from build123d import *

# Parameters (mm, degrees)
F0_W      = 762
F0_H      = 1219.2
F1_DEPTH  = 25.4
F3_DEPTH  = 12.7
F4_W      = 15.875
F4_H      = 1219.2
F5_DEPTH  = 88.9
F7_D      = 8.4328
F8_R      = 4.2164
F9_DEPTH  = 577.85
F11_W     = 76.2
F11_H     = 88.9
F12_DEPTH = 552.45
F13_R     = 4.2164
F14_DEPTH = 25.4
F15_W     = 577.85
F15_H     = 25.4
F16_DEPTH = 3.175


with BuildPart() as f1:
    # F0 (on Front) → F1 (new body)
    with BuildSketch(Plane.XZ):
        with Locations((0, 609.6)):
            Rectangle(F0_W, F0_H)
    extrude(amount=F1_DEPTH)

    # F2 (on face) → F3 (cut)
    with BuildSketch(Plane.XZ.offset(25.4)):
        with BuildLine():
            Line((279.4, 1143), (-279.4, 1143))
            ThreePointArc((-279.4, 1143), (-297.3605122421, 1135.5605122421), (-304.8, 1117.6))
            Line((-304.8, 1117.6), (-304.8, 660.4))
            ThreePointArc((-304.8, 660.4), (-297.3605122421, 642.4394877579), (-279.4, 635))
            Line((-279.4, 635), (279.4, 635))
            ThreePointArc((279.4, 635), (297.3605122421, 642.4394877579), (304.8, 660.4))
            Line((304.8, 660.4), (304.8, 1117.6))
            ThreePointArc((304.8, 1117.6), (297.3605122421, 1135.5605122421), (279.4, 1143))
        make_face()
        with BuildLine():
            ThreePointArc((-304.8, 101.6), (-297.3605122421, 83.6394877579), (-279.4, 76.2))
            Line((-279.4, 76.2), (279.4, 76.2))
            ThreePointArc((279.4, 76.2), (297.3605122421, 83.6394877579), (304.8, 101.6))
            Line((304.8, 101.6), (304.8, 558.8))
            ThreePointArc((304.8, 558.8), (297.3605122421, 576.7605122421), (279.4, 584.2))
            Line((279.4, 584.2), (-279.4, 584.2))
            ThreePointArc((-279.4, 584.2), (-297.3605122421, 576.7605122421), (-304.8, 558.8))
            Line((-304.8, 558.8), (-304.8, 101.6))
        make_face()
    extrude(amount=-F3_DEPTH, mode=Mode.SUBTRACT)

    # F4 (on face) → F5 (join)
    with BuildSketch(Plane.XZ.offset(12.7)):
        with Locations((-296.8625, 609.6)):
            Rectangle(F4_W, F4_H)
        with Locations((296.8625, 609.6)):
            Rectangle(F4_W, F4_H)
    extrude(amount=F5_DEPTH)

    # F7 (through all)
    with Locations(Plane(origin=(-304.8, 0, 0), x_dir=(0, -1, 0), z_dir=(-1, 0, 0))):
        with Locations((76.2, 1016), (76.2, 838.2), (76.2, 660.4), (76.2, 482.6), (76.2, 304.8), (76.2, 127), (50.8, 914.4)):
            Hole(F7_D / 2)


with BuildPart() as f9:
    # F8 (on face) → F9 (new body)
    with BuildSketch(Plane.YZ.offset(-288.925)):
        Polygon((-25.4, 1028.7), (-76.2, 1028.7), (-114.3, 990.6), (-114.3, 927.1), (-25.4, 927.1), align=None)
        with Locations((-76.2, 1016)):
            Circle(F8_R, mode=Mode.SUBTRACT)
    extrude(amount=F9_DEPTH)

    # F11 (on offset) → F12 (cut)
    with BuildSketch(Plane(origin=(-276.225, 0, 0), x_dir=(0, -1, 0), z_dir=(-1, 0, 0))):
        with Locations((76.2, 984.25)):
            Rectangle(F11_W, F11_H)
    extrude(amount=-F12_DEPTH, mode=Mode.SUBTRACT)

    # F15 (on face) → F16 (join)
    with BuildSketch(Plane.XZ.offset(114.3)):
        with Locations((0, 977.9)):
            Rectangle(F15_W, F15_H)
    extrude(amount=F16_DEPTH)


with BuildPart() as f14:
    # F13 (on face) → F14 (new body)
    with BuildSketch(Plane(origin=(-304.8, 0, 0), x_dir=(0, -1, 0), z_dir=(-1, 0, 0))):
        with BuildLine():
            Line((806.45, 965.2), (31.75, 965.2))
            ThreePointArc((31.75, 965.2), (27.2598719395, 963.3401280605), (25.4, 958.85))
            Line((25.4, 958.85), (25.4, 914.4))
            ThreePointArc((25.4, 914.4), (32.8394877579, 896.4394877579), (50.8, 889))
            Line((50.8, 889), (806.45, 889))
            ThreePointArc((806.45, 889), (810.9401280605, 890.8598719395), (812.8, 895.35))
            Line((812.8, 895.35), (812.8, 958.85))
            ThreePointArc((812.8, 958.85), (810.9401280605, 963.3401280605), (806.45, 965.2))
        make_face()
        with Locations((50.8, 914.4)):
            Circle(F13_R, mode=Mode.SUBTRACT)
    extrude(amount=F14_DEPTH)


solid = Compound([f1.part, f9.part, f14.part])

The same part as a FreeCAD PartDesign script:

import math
import FreeCAD as App
import Part
import Sketcher
Q = App.Units.Quantity


def add_polygon(sketch, points):
    """Adds a closed chain of lines whose ends are joined by coincident constraints."""
    first, n = sketch.GeometryCount, len(points)
    for a, b in zip(points, points[1:] + points[:1]):
        sketch.addGeometry(Part.LineSegment(App.Vector(*a, 0), App.Vector(*b, 0)), False)
    for i in range(n):
        sketch.addConstraint(Sketcher.Constraint("Coincident", first + i, 2, first + (i + 1) % n, 1))

doc = App.newDocument("Part")
body = doc.addObject("PartDesign::Body", "Body")

# Sketch on XZ plane
sketch1 = body.newObject("Sketcher::SketchObject", "Sketch")
sketch1.AttachmentSupport = (doc.getObject("XZ_Plane"), [""])
sketch1.MapMode = "FlatFace"
add_polygon(sketch1, [(-381, 1219), (-381, 0), (381, 0), (381, 1219)])  # lines 0-3
sketch1.addConstraint([
    Sketcher.Constraint("Vertical", 0),
    Sketcher.Constraint("Horizontal", 1),
    Sketcher.Constraint("Vertical", 2),
    Sketcher.Constraint("Horizontal", 3),
    Sketcher.Constraint("Symmetric", 0, 2, 1, 2, -1, 1),
    Sketcher.Constraint("DistanceX", 1, 1, 1, 2, Q("30 in")),
    Sketcher.Constraint("DistanceY", 0, 2, 0, 1, Q("48 in")),
])
pad1 = body.newObject("PartDesign::Pad", "Pad")
pad1.Profile = sketch1
pad1.Length = Q("1 in")

# Sketch on XZ plane
sketch2 = body.newObject("Sketcher::SketchObject", "Sketch001")
sketch2.AttachmentSupport = (doc.getObject("XZ_Plane"), [""])
sketch2.MapMode = "FlatFace"
sketch2.AttachmentOffset = App.Placement(App.Vector(0, 0, 1 * 25.4), App.Rotation())
sketch2.addGeometry([
    Part.LineSegment(App.Vector(279, 1143, 0), App.Vector(-279, 1143, 0)),  # 0
    Part.ArcOfCircle(Part.Circle(App.Vector(-279, 1118, 0), App.Vector(0, 0, 1), 25), math.radians(90), math.radians(180)),  # 1
    Part.LineSegment(App.Vector(-305, 1118, 0), App.Vector(-305, 660, 0)),  # 2
    Part.ArcOfCircle(Part.Circle(App.Vector(-279, 660, 0), App.Vector(0, 0, 1), 25), math.radians(180), math.radians(270)),  # 3
    Part.LineSegment(App.Vector(-279, 635, 0), App.Vector(279, 635, 0)),  # 4
    Part.ArcOfCircle(Part.Circle(App.Vector(279, 660, 0), App.Vector(0, 0, 1), 25), math.radians(-90), math.radians(0)),  # 5
    Part.LineSegment(App.Vector(305, 660, 0), App.Vector(305, 1118, 0)),  # 6
    Part.ArcOfCircle(Part.Circle(App.Vector(279, 1118, 0), App.Vector(0, 0, 1), 25), math.radians(0), math.radians(90)),  # 7
    Part.ArcOfCircle(Part.Circle(App.Vector(-279, 102, 0), App.Vector(0, 0, 1), 25), math.radians(180), math.radians(270)),  # 8
    Part.LineSegment(App.Vector(-279, 76, 0), App.Vector(279, 76, 0)),  # 9
    Part.ArcOfCircle(Part.Circle(App.Vector(279, 102, 0), App.Vector(0, 0, 1), 25), math.radians(-90), math.radians(0)),  # 10
    Part.LineSegment(App.Vector(305, 102, 0), App.Vector(305, 559, 0)),  # 11
    Part.ArcOfCircle(Part.Circle(App.Vector(279, 559, 0), App.Vector(0, 0, 1), 25), math.radians(0), math.radians(90)),  # 12
    Part.LineSegment(App.Vector(279, 584, 0), App.Vector(-279, 584, 0)),  # 13
    Part.ArcOfCircle(Part.Circle(App.Vector(-279, 559, 0), App.Vector(0, 0, 1), 25), math.radians(90), math.radians(180)),  # 14
    Part.LineSegment(App.Vector(-305, 559, 0), App.Vector(-305, 102, 0)),  # 15
], False)
sketch2.addConstraint([
    Sketcher.Constraint("Tangent", 0, 2, 1, 1),
    Sketcher.Constraint("Tangent", 1, 2, 2, 1),
    Sketcher.Constraint("Tangent", 2, 2, 3, 1),
    Sketcher.Constraint("Tangent", 3, 2, 4, 1),
    Sketcher.Constraint("Tangent", 4, 2, 5, 1),
    Sketcher.Constraint("Tangent", 5, 2, 6, 1),
    Sketcher.Constraint("Tangent", 6, 2, 7, 1),
    Sketcher.Constraint("Tangent", 7, 2, 0, 1),
    Sketcher.Constraint("Tangent", 8, 2, 9, 1),
    Sketcher.Constraint("Tangent", 9, 2, 10, 1),
    Sketcher.Constraint("Tangent", 10, 2, 11, 1),
    Sketcher.Constraint("Tangent", 11, 2, 12, 1),
    Sketcher.Constraint("Tangent", 12, 2, 13, 1),
    Sketcher.Constraint("Tangent", 13, 2, 14, 1),
    Sketcher.Constraint("Tangent", 14, 2, 15, 1),
    Sketcher.Constraint("Tangent", 15, 2, 8, 1),
    Sketcher.Constraint("Horizontal", 0),
    Sketcher.Constraint("Vertical", 2),
    Sketcher.Constraint("Horizontal", 4),
    Sketcher.Constraint("Vertical", 6),
    Sketcher.Constraint("Horizontal", 9),
    Sketcher.Constraint("Vertical", 11),
    Sketcher.Constraint("Horizontal", 13),
    Sketcher.Constraint("Vertical", 15),
    Sketcher.Constraint("Equal", 1, 3),
    Sketcher.Constraint("Equal", 3, 5),
    Sketcher.Constraint("Equal", 5, 7),
    Sketcher.Constraint("Equal", 7, 8),
    Sketcher.Constraint("Equal", 8, 10),
    Sketcher.Constraint("Equal", 10, 12),
    Sketcher.Constraint("Equal", 12, 14),
    Sketcher.Constraint("Vertical", 3, 3, 8, 3),
    Sketcher.Constraint("Vertical", 7, 3, 10, 3),
    Sketcher.Constraint("Equal", 6, 11),
    Sketcher.Constraint("Radius", 1, Q("1 in")),
    Sketcher.Constraint("DistanceX", 0, 2, 0, 1, Q("22 in")),
    Sketcher.Constraint("DistanceY", 2, 2, 2, 1, Q("18 in")),
    Sketcher.Constraint("DistanceX", 1, 3, -1, 1, Q("11 in")),
    Sketcher.Constraint("DistanceY", -1, 1, 1, 3, Q("44 in")),
    Sketcher.Constraint("DistanceY", -1, 1, 8, 3, Q("4 in")),
])
pocket1 = body.newObject("PartDesign::Pocket", "Pocket")
pocket1.Profile = sketch2
pocket1.Length = Q("0.5 in")

# Sketch on XZ plane
sketch3 = body.newObject("Sketcher::SketchObject", "Sketch002")
sketch3.AttachmentSupport = (doc.getObject("XZ_Plane"), [""])
sketch3.MapMode = "FlatFace"
sketch3.AttachmentOffset = App.Placement(App.Vector(0, 0, 0.5 * 25.4), App.Rotation())
add_polygon(sketch3, [(-305, 1219), (-305, 0), (-289, 0), (-289, 1219)])  # lines 0-3
add_polygon(sketch3, [(289, 1219), (289, 0), (305, 0), (305, 1219)])  # lines 4-7
sketch3.addConstraint([
    Sketcher.Constraint("Vertical", 0),
    Sketcher.Constraint("Horizontal", 1),
    Sketcher.Constraint("Vertical", 2),
    Sketcher.Constraint("Horizontal", 3),
    Sketcher.Constraint("Vertical", 4),
    Sketcher.Constraint("Horizontal", 5),
    Sketcher.Constraint("Vertical", 6),
    Sketcher.Constraint("Horizontal", 7),
    Sketcher.Constraint("Symmetric", 1, 2, 4, 2, -1, 1),
    Sketcher.Constraint("Symmetric", 0, 2, 5, 2, -2),
    Sketcher.Constraint("Horizontal", 3, 2, 6, 2),
    Sketcher.Constraint("DistanceY", 0, 2, 0, 1, Q("48 in")),
    Sketcher.Constraint("DistanceX", 0, 2, -1, 1, Q("12 in")),
    Sketcher.Constraint("DistanceX", 1, 1, 1, 2, Q("0.625 in")),
])
pad2 = body.newObject("PartDesign::Pad", "Pad001")
pad2.Profile = sketch3
pad2.Length = Q("3.5 in")

# Sketch on YZ plane
sketch4 = body.newObject("Sketcher::SketchObject", "Sketch003")
sketch4.AttachmentSupport = (doc.getObject("YZ_Plane"), [""])
sketch4.MapMode = "FlatFace"
sketch4.AttachmentOffset = App.Placement(App.Vector(0, 0, -12 * 25.4), App.Rotation())
sketch4.addGeometry([
    Part.Circle(App.Vector(-76.2, 1016, 0), App.Vector(0, 0, 1), 4.2),  # 0
    Part.Circle(App.Vector(-76.2, 838.2, 0), App.Vector(0, 0, 1), 4.2),  # 1
    Part.Circle(App.Vector(-76.2, 660.4, 0), App.Vector(0, 0, 1), 4.2),  # 2
    Part.Circle(App.Vector(-76.2, 482.6, 0), App.Vector(0, 0, 1), 4.2),  # 3
    Part.Circle(App.Vector(-76.2, 304.8, 0), App.Vector(0, 0, 1), 4.2),  # 4
    Part.Circle(App.Vector(-76.2, 127, 0), App.Vector(0, 0, 1), 4.2),  # 5
    Part.Circle(App.Vector(-50.8, 914.4, 0), App.Vector(0, 0, 1), 4.2),  # 6
], False)
sketch4.addConstraint([
    Sketcher.Constraint("Equal", 0, 1),
    Sketcher.Constraint("Equal", 1, 2),
    Sketcher.Constraint("Equal", 2, 3),
    Sketcher.Constraint("Equal", 3, 4),
    Sketcher.Constraint("Equal", 4, 5),
    Sketcher.Constraint("Equal", 5, 6),
    Sketcher.Constraint("Vertical", 0, 3, 1, 3),
    Sketcher.Constraint("Vertical", 1, 3, 2, 3),
    Sketcher.Constraint("Vertical", 2, 3, 3, 3),
    Sketcher.Constraint("Vertical", 3, 3, 4, 3),
    Sketcher.Constraint("Vertical", 4, 3, 5, 3),
    Sketcher.Constraint("Diameter", 0, Q("0.332 in")),
    Sketcher.Constraint("DistanceX", 0, 3, -1, 1, Q("3 in")),
    Sketcher.Constraint("DistanceY", -1, 1, 0, 3, Q("40 in")),
    Sketcher.Constraint("DistanceY", -1, 1, 1, 3, Q("33 in")),
    Sketcher.Constraint("DistanceY", -1, 1, 2, 3, Q("26 in")),
    Sketcher.Constraint("DistanceY", -1, 1, 3, 3, Q("19 in")),
    Sketcher.Constraint("DistanceY", -1, 1, 4, 3, Q("12 in")),
    Sketcher.Constraint("DistanceY", -1, 1, 5, 3, Q("5 in")),
    Sketcher.Constraint("DistanceX", 6, 3, -1, 1, Q("2 in")),
    Sketcher.Constraint("DistanceY", -1, 1, 6, 3, Q("36 in")),
])
doc.recompute()
hole = body.newObject("PartDesign::Hole", "Hole")
hole.Profile = sketch4
hole.ThreadType = "None"
hole.Diameter = Q("0.332 in")
hole.DepthType = "ThroughAll"
hole.Reversed = True
body2 = doc.addObject("PartDesign::Body", "Body001")

# Sketch on YZ plane
sketch5 = body2.newObject("Sketcher::SketchObject", "Sketch004")
sketch5.AttachmentSupport = (doc.getObject("YZ_Plane001"), [""])
sketch5.MapMode = "FlatFace"
sketch5.AttachmentOffset = App.Placement(App.Vector(0, 0, -11.375 * 25.4), App.Rotation())
add_polygon(sketch5, [(-25.4, 1028.7), (-76.2, 1028.7), (-114.3, 990.6), (-114.3, 927.1), (-25.4, 927.1)])  # lines 0-4
sketch5.addGeometry(Part.Circle(App.Vector(-76.2, 1016, 0), App.Vector(0, 0, 1), 4.2), False)  # 5
sketch5.addConstraint([
    Sketcher.Constraint("Horizontal", 0),
    Sketcher.Constraint("Vertical", 2),
    Sketcher.Constraint("Horizontal", 3),
    Sketcher.Constraint("Vertical", 4),
    Sketcher.Constraint("Vertical", 5, 3, 0, 2),
    Sketcher.Constraint("DistanceX", 0, 2, 0, 1, Q("2 in")),
    Sketcher.Constraint("DistanceY", 4, 1, 4, 2, Q("4 in")),
    Sketcher.Constraint("Diameter", 5, Q("0.332 in")),
    Sketcher.Constraint("DistanceX", 3, 1, 3, 2, Q("3.5 in")),
    Sketcher.Constraint("DistanceY", 2, 2, 2, 1, Q("2.5 in")),
    Sketcher.Constraint("DistanceX", 5, 3, -1, 1, Q("3 in")),
    Sketcher.Constraint("DistanceY", -1, 1, 5, 3, Q("40 in")),
    Sketcher.Constraint("DistanceY", -1, 1, 1, 2, Q("39 in")),
])
pad3 = body2.newObject("PartDesign::Pad", "Pad002")
pad3.Profile = sketch5
pad3.Length = Q("22.75 in")

# Sketch on YZ plane
sketch6 = body2.newObject("Sketcher::SketchObject", "Sketch005")
sketch6.AttachmentSupport = (doc.getObject("YZ_Plane001"), [""])
sketch6.MapMode = "FlatFace"
sketch6.AttachmentOffset = App.Placement(App.Vector(0, 0, -10.875 * 25.4), App.Rotation())
add_polygon(sketch6, [(-38, 1029), (-38, 940), (-114, 940), (-114, 1029)])  # lines 0-3
sketch6.addConstraint([
    Sketcher.Constraint("Vertical", 0),
    Sketcher.Constraint("Horizontal", 1),
    Sketcher.Constraint("Vertical", 2),
    Sketcher.Constraint("Horizontal", 3),
    Sketcher.Constraint("DistanceX", 1, 2, 1, 1, Q("3 in")),
    Sketcher.Constraint("DistanceY", 0, 2, 0, 1, Q("3.5 in")),
    Sketcher.Constraint("DistanceY", -1, 1, 0, 2, Q("37 in")),
    Sketcher.Constraint("DistanceX", 0, 2, -1, 1, Q("1.5 in")),
])
pocket2 = body2.newObject("PartDesign::Pocket", "Pocket001")
pocket2.Profile = sketch6
pocket2.Length = Q("21.75 in")
pocket2.Reversed = True

# Sketch on XZ plane
sketch7 = body2.newObject("Sketcher::SketchObject", "Sketch006")
sketch7.AttachmentSupport = (doc.getObject("XZ_Plane001"), [""])
sketch7.MapMode = "FlatFace"
sketch7.AttachmentOffset = App.Placement(App.Vector(0, 0, 4.5 * 25.4), App.Rotation())
add_polygon(sketch7, [(-289, 991), (-289, 965), (289, 965), (289, 991)])  # lines 0-3
sketch7.addConstraint([
    Sketcher.Constraint("Vertical", 0),
    Sketcher.Constraint("Horizontal", 1),
    Sketcher.Constraint("Vertical", 2),
    Sketcher.Constraint("Horizontal", 3),
    Sketcher.Constraint("DistanceY", 0, 2, 0, 1, Q("1 in")),
    Sketcher.Constraint("DistanceY", -1, 1, 0, 2, Q("38 in")),
    Sketcher.Constraint("DistanceX", 1, 1, 1, 2, Q("22.75 in")),
    Sketcher.Constraint("DistanceX", 0, 2, -1, 1, Q("11.375 in")),
])
pad4 = body2.newObject("PartDesign::Pad", "Pad003")
pad4.Profile = sketch7
pad4.Length = Q("0.125 in")
body3 = doc.addObject("PartDesign::Body", "Body002")

# Sketch on YZ plane
sketch8 = body3.newObject("Sketcher::SketchObject", "Sketch007")
sketch8.AttachmentSupport = (doc.getObject("YZ_Plane002"), [""])
sketch8.MapMode = "FlatFace"
sketch8.AttachmentOffset = App.Placement(App.Vector(0, 0, -12 * 25.4), App.Rotation())
sketch8.addGeometry([
    Part.LineSegment(App.Vector(-806.5, 965.2, 0), App.Vector(-31.8, 965.2, 0)),  # 0
    Part.ArcOfCircle(Part.Circle(App.Vector(-31.8, 958.9, 0), App.Vector(0, 0, 1), 6.3), math.radians(0), math.radians(90)),  # 1
    Part.LineSegment(App.Vector(-25.4, 958.9, 0), App.Vector(-25.4, 914.4, 0)),  # 2
    Part.ArcOfCircle(Part.Circle(App.Vector(-50.8, 914.4, 0), App.Vector(0, 0, 1), 25.4), math.radians(-90), math.radians(0)),  # 3
    Part.LineSegment(App.Vector(-50.8, 889, 0), App.Vector(-806.5, 889, 0)),  # 4
    Part.ArcOfCircle(Part.Circle(App.Vector(-806.5, 895.4, 0), App.Vector(0, 0, 1), 6.3), math.radians(180), math.radians(270)),  # 5
    Part.LineSegment(App.Vector(-812.8, 895.4, 0), App.Vector(-812.8, 958.9, 0)),  # 6
    Part.ArcOfCircle(Part.Circle(App.Vector(-806.5, 958.9, 0), App.Vector(0, 0, 1), 6.3), math.radians(90), math.radians(180)),  # 7
    Part.Circle(App.Vector(-50.8, 914.4, 0), App.Vector(0, 0, 1), 4.2),  # 8
], False)
sketch8.addConstraint([
    Sketcher.Constraint("Tangent", 0, 2, 1, 2),
    Sketcher.Constraint("Tangent", 1, 1, 2, 1),
    Sketcher.Constraint("Tangent", 2, 2, 3, 2),
    Sketcher.Constraint("Tangent", 3, 1, 4, 1),
    Sketcher.Constraint("Tangent", 4, 2, 5, 2),
    Sketcher.Constraint("Tangent", 5, 1, 6, 1),
    Sketcher.Constraint("Tangent", 6, 2, 7, 2),
    Sketcher.Constraint("Tangent", 7, 1, 0, 1),
    Sketcher.Constraint("Horizontal", 0),
    Sketcher.Constraint("Vertical", 2),
    Sketcher.Constraint("Horizontal", 4),
    Sketcher.Constraint("Vertical", 6),
    Sketcher.Constraint("Coincident", 8, 3, 3, 3),
    Sketcher.Constraint("Equal", 1, 5),
    Sketcher.Constraint("Equal", 5, 7),
    Sketcher.Constraint("Radius", 3, Q("1 in")),
    Sketcher.Constraint("Radius", 1, Q("0.25 in")),
    Sketcher.Constraint("Diameter", 8, Q("0.332 in")),
    Sketcher.Constraint("DistanceX", 0, 1, 0, 2, Q("30.5 in")),
    Sketcher.Constraint("DistanceY", 6, 1, 6, 2, Q("2.5 in")),
    Sketcher.Constraint("DistanceX", 3, 3, -1, 1, Q("2 in")),
    Sketcher.Constraint("DistanceY", -1, 1, 3, 3, Q("36 in")),
])
pad5 = body3.newObject("PartDesign::Pad", "Pad004")
pad5.Profile = sketch8
pad5.Length = Q("1 in")
pad5.Reversed = True

doc.recompute()
